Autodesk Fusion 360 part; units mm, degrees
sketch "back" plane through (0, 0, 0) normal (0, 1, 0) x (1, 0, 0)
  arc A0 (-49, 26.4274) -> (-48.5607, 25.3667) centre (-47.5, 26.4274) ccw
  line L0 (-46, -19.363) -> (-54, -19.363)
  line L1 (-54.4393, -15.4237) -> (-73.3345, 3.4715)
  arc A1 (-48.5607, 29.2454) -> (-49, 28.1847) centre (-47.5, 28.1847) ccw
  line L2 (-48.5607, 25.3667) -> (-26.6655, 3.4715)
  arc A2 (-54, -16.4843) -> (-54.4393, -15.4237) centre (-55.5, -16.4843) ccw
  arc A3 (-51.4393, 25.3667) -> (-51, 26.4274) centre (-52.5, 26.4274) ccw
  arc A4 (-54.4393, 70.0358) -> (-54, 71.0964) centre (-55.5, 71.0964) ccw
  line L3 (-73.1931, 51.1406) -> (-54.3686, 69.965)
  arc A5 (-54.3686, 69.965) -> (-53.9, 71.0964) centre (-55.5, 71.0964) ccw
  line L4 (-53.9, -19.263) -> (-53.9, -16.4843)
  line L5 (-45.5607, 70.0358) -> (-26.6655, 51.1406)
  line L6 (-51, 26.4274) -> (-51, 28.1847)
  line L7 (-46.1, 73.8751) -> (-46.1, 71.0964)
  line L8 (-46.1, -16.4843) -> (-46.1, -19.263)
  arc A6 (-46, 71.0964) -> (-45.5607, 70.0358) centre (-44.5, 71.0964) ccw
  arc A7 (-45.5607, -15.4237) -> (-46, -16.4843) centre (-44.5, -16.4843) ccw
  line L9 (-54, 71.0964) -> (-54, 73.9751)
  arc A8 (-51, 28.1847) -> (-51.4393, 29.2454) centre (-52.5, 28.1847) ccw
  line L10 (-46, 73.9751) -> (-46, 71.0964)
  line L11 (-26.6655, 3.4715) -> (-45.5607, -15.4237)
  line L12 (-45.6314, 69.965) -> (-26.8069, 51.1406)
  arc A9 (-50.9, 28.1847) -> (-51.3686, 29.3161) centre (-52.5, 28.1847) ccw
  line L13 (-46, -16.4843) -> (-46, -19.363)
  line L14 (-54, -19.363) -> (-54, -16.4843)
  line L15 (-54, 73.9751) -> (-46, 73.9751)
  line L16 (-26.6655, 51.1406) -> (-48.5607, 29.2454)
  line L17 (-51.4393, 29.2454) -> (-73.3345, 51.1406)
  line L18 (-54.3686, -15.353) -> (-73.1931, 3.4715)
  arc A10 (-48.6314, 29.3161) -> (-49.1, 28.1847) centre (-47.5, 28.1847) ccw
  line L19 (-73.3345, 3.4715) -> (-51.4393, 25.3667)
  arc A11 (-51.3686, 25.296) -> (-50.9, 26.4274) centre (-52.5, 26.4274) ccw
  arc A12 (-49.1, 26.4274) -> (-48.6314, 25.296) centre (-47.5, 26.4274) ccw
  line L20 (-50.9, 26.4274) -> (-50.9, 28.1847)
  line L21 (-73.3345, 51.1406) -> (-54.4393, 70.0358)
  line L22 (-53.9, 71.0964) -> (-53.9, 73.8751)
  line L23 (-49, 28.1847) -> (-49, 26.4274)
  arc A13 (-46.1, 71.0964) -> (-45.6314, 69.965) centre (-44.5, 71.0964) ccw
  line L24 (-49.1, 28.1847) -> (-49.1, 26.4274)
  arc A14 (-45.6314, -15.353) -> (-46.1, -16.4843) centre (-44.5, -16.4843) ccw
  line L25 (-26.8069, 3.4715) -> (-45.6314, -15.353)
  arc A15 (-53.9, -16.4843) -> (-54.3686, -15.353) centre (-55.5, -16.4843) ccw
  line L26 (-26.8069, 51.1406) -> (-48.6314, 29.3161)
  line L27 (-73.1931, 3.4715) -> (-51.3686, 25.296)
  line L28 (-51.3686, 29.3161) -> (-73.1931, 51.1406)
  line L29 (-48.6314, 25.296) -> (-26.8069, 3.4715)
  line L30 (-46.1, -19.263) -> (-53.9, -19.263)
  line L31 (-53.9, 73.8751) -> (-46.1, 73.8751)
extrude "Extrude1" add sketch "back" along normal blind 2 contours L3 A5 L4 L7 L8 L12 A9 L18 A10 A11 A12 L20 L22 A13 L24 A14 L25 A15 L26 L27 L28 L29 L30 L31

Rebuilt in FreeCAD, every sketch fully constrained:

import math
import FreeCAD as App
import Part
import Sketcher
Q = App.Units.Quantity

doc = App.newDocument("Part")
body = doc.addObject("PartDesign::Body", "Body")

# Sketch on XZ plane
sketch1 = body.newObject("Sketcher::SketchObject", "Sketch")
sketch1.AttachmentSupport = (doc.getObject("XZ_Plane"), [""])
sketch1.MapMode = "FlatFace"
sketch1.addGeometry(Part.LineSegment(App.Vector(-54.4, -70, 0), App.Vector(-73.2, -51.1, 0)), False)
sketch1.addGeometry(Part.LineSegment(App.Vector(-73.2, -51.1, 0), App.Vector(-51.4, -29.3, 0)), False)
sketch1.addGeometry(Part.ArcOfCircle(Part.Circle(App.Vector(-52.5, -28.2, 0), App.Vector(0, 0, 1), 1.6), math.radians(-45), math.radians(0)), False)
sketch1.addGeometry(Part.LineSegment(App.Vector(-50.9, -28.2, 0), App.Vector(-50.9, -26.4, 0)), False)
sketch1.addGeometry(Part.ArcOfCircle(Part.Circle(App.Vector(-52.5, -26.4, 0), App.Vector(0, 0, 1), 1.6), math.radians(0), math.radians(45)), False)
sketch1.addGeometry(Part.LineSegment(App.Vector(-51.4, -25.3, 0), App.Vector(-73.2, -3.5, 0)), False)
sketch1.addGeometry(Part.LineSegment(App.Vector(-73.2, -3.5, 0), App.Vector(-54.4, 15.4, 0)), False)
sketch1.addGeometry(Part.ArcOfCircle(Part.Circle(App.Vector(-55.5, 16.5, 0), App.Vector(0, 0, 1), 1.6), math.radians(-45), math.radians(0)), False)
sketch1.addGeometry(Part.LineSegment(App.Vector(-53.9, 16.5, 0), App.Vector(-53.9, 19.3, 0)), False)
sketch1.addGeometry(Part.LineSegment(App.Vector(-53.9, 19.3, 0), App.Vector(-46.1, 19.3, 0)), False)
sketch1.addGeometry(Part.LineSegment(App.Vector(-46.1, 19.3, 0), App.Vector(-46.1, 16.5, 0)), False)
sketch1.addGeometry(Part.ArcOfCircle(Part.Circle(App.Vector(-44.5, 16.5, 0), App.Vector(0, 0, 1), 1.6), math.radians(180), math.radians(225)), False)
sketch1.addGeometry(Part.LineSegment(App.Vector(-45.6, 15.4, 0), App.Vector(-26.8, -3.5, 0)), False)
sketch1.addGeometry(Part.LineSegment(App.Vector(-26.8, -3.5, 0), App.Vector(-48.6, -25.3, 0)), False)
sketch1.addGeometry(Part.ArcOfCircle(Part.Circle(App.Vector(-47.5, -26.4, 0), App.Vector(0, 0, 1), 1.6), math.radians(135), math.radians(180)), False)
sketch1.addGeometry(Part.LineSegment(App.Vector(-49.1, -26.4, 0), App.Vector(-49.1, -28.2, 0)), False)
sketch1.addGeometry(Part.ArcOfCircle(Part.Circle(App.Vector(-47.5, -28.2, 0), App.Vector(0, 0, 1), 1.6), math.radians(180), math.radians(225)), False)
sketch1.addGeometry(Part.LineSegment(App.Vector(-48.6, -29.3, 0), App.Vector(-26.8, -51.1, 0)), False)
sketch1.addGeometry(Part.LineSegment(App.Vector(-26.8, -51.1, 0), App.Vector(-45.6, -70, 0)), False)
sketch1.addGeometry(Part.ArcOfCircle(Part.Circle(App.Vector(-44.5, -71.1, 0), App.Vector(0, 0, 1), 1.6), math.radians(135), math.radians(180)), False)
sketch1.addGeometry(Part.LineSegment(App.Vector(-46.1, -71.1, 0), App.Vector(-46.1, -73.9, 0)), False)
sketch1.addGeometry(Part.LineSegment(App.Vector(-46.1, -73.9, 0), App.Vector(-53.9, -73.9, 0)), False)
sketch1.addGeometry(Part.LineSegment(App.Vector(-53.9, -73.9, 0), App.Vector(-53.9, -71.1, 0)), False)
sketch1.addGeometry(Part.ArcOfCircle(Part.Circle(App.Vector(-55.5, -71.1, 0), App.Vector(0, 0, 1), 1.6), math.radians(0), math.radians(45)), False)
sketch1.addConstraint(Sketcher.Constraint("Coincident", 0, 2, 1, 1))
sketch1.addConstraint(Sketcher.Constraint("Tangent", 1, 2, 2, 1))
sketch1.addConstraint(Sketcher.Constraint("Tangent", 2, 2, 3, 1))
sketch1.addConstraint(Sketcher.Constraint("Tangent", 3, 2, 4, 1))
sketch1.addConstraint(Sketcher.Constraint("Tangent", 4, 2, 5, 1))
sketch1.addConstraint(Sketcher.Constraint("Coincident", 5, 2, 6, 1))
sketch1.addConstraint(Sketcher.Constraint("Tangent", 6, 2, 7, 1))
sketch1.addConstraint(Sketcher.Constraint("Tangent", 7, 2, 8, 1))
sketch1.addConstraint(Sketcher.Constraint("Coincident", 8, 2, 9, 1))
sketch1.addConstraint(Sketcher.Constraint("Coincident", 9, 2, 10, 1))
sketch1.addConstraint(Sketcher.Constraint("Tangent", 10, 2, 11, 1))
sketch1.addConstraint(Sketcher.Constraint("Tangent", 11, 2, 12, 1))
sketch1.addConstraint(Sketcher.Constraint("Coincident", 12, 2, 13, 1))
sketch1.addConstraint(Sketcher.Constraint("Tangent", 13, 2, 14, 1))
sketch1.addConstraint(Sketcher.Constraint("Tangent", 14, 2, 15, 1))
sketch1.addConstraint(Sketcher.Constraint("Tangent", 15, 2, 16, 1))
sketch1.addConstraint(Sketcher.Constraint("Tangent", 16, 2, 17, 1))
sketch1.addConstraint(Sketcher.Constraint("Coincident", 17, 2, 18, 1))
sketch1.addConstraint(Sketcher.Constraint("Tangent", 18, 2, 19, 1))
sketch1.addConstraint(Sketcher.Constraint("Tangent", 19, 2, 20, 1))
sketch1.addConstraint(Sketcher.Constraint("Coincident", 20, 2, 21, 1))
sketch1.addConstraint(Sketcher.Constraint("Coincident", 21, 2, 22, 1))
sketch1.addConstraint(Sketcher.Constraint("Tangent", 22, 2, 23, 1))
sketch1.addConstraint(Sketcher.Constraint("Tangent", 23, 2, 0, 1))
sketch1.addConstraint(Sketcher.Constraint("Vertical", 3))
sketch1.addConstraint(Sketcher.Constraint("Vertical", 8))
sketch1.addConstraint(Sketcher.Constraint("Horizontal", 9))
sketch1.addConstraint(Sketcher.Constraint("Vertical", 10))
sketch1.addConstraint(Sketcher.Constraint("Vertical", 15))
sketch1.addConstraint(Sketcher.Constraint("Vertical", 20))
sketch1.addConstraint(Sketcher.Constraint("Horizontal", 21))
sketch1.addConstraint(Sketcher.Constraint("Vertical", 22))
sketch1.addConstraint(Sketcher.Constraint("Equal", 2, 4))
sketch1.addConstraint(Sketcher.Constraint("Equal", 4, 7))
sketch1.addConstraint(Sketcher.Constraint("Equal", 7, 11))
sketch1.addConstraint(Sketcher.Constraint("Equal", 11, 14))
sketch1.addConstraint(Sketcher.Constraint("Equal", 14, 16))
sketch1.addConstraint(Sketcher.Constraint("Equal", 16, 19))
sketch1.addConstraint(Sketcher.Constraint("Equal", 19, 23))
sketch1.addConstraint(Sketcher.Constraint("Perpendicular", 0, 1))
sketch1.addConstraint(Sketcher.Constraint("Perpendicular", 1, 5))
sketch1.addConstraint(Sketcher.Constraint("Perpendicular", 5, 6))
sketch1.addConstraint(Sketcher.Constraint("Perpendicular", 6, 12))
sketch1.addConstraint(Sketcher.Constraint("Perpendicular", 12, 13))
sketch1.addConstraint(Sketcher.Constraint("Perpendicular", 13, 17))
sketch1.addConstraint(Sketcher.Constraint("Perpendicular", 17, 18))
sketch1.addConstraint(Sketcher.Constraint("Horizontal", 7, 3, 11, 3))
sketch1.addConstraint(Sketcher.Constraint("Horizontal", 4, 3, 14, 3))
sketch1.addConstraint(Sketcher.Constraint("Horizontal", 2, 3, 16, 3))
sketch1.addConstraint(Sketcher.Constraint("Horizontal", 19, 3, 23, 3))
sketch1.addConstraint(Sketcher.Constraint("Horizontal", 6, 2, 11, 2))
sketch1.addConstraint(Sketcher.Constraint("Horizontal", 5, 2, 12, 2))
sketch1.addConstraint(Sketcher.Constraint("Horizontal", 0, 2, 17, 2))
sketch1.addConstraint(Sketcher.Constraint("Vertical", 11, 3, 19, 3))
sketch1.addConstraint(Sketcher.Constraint("Vertical", 0, 2, 5, 2))
sketch1.addConstraint(Sketcher.Constraint("Equal", 10, 20))
sketch1.addConstraint(Sketcher.Constraint("Radius", 2, Q("1.6 mm")))
sketch1.addConstraint(Sketcher.Constraint("DistanceX", 9, 1, 9, 2, Q("7.8 mm")))
sketch1.addConstraint(Sketcher.Constraint("DistanceX", 7, 3, 4, 3, Q("3 mm")))
sketch1.addConstraint(Sketcher.Constraint("DistanceX", 2, 3, -1, 1, Q("52.5 mm")))
sketch1.addConstraint(Sketcher.Constraint("DistanceY", 1, 2, 4, 2, Q("4.02 mm")))
sketch1.addConstraint(Sketcher.Constraint("DistanceY", 6, 2, 8, 2, Q("3.91 mm")))
sketch1.addConstraint(Sketcher.Constraint("DistanceX", 0, 2, -1, 1, Q("73.193 mm")))
sketch1.addConstraint(Sketcher.Constraint("DistanceY", 1, 2, -1, 1, Q("29.316 mm")))
pad1 = body.newObject("PartDesign::Pad", "Pad")
pad1.Profile = sketch1
pad1.Length = 2
pad1.Reversed = True

doc.recompute()
